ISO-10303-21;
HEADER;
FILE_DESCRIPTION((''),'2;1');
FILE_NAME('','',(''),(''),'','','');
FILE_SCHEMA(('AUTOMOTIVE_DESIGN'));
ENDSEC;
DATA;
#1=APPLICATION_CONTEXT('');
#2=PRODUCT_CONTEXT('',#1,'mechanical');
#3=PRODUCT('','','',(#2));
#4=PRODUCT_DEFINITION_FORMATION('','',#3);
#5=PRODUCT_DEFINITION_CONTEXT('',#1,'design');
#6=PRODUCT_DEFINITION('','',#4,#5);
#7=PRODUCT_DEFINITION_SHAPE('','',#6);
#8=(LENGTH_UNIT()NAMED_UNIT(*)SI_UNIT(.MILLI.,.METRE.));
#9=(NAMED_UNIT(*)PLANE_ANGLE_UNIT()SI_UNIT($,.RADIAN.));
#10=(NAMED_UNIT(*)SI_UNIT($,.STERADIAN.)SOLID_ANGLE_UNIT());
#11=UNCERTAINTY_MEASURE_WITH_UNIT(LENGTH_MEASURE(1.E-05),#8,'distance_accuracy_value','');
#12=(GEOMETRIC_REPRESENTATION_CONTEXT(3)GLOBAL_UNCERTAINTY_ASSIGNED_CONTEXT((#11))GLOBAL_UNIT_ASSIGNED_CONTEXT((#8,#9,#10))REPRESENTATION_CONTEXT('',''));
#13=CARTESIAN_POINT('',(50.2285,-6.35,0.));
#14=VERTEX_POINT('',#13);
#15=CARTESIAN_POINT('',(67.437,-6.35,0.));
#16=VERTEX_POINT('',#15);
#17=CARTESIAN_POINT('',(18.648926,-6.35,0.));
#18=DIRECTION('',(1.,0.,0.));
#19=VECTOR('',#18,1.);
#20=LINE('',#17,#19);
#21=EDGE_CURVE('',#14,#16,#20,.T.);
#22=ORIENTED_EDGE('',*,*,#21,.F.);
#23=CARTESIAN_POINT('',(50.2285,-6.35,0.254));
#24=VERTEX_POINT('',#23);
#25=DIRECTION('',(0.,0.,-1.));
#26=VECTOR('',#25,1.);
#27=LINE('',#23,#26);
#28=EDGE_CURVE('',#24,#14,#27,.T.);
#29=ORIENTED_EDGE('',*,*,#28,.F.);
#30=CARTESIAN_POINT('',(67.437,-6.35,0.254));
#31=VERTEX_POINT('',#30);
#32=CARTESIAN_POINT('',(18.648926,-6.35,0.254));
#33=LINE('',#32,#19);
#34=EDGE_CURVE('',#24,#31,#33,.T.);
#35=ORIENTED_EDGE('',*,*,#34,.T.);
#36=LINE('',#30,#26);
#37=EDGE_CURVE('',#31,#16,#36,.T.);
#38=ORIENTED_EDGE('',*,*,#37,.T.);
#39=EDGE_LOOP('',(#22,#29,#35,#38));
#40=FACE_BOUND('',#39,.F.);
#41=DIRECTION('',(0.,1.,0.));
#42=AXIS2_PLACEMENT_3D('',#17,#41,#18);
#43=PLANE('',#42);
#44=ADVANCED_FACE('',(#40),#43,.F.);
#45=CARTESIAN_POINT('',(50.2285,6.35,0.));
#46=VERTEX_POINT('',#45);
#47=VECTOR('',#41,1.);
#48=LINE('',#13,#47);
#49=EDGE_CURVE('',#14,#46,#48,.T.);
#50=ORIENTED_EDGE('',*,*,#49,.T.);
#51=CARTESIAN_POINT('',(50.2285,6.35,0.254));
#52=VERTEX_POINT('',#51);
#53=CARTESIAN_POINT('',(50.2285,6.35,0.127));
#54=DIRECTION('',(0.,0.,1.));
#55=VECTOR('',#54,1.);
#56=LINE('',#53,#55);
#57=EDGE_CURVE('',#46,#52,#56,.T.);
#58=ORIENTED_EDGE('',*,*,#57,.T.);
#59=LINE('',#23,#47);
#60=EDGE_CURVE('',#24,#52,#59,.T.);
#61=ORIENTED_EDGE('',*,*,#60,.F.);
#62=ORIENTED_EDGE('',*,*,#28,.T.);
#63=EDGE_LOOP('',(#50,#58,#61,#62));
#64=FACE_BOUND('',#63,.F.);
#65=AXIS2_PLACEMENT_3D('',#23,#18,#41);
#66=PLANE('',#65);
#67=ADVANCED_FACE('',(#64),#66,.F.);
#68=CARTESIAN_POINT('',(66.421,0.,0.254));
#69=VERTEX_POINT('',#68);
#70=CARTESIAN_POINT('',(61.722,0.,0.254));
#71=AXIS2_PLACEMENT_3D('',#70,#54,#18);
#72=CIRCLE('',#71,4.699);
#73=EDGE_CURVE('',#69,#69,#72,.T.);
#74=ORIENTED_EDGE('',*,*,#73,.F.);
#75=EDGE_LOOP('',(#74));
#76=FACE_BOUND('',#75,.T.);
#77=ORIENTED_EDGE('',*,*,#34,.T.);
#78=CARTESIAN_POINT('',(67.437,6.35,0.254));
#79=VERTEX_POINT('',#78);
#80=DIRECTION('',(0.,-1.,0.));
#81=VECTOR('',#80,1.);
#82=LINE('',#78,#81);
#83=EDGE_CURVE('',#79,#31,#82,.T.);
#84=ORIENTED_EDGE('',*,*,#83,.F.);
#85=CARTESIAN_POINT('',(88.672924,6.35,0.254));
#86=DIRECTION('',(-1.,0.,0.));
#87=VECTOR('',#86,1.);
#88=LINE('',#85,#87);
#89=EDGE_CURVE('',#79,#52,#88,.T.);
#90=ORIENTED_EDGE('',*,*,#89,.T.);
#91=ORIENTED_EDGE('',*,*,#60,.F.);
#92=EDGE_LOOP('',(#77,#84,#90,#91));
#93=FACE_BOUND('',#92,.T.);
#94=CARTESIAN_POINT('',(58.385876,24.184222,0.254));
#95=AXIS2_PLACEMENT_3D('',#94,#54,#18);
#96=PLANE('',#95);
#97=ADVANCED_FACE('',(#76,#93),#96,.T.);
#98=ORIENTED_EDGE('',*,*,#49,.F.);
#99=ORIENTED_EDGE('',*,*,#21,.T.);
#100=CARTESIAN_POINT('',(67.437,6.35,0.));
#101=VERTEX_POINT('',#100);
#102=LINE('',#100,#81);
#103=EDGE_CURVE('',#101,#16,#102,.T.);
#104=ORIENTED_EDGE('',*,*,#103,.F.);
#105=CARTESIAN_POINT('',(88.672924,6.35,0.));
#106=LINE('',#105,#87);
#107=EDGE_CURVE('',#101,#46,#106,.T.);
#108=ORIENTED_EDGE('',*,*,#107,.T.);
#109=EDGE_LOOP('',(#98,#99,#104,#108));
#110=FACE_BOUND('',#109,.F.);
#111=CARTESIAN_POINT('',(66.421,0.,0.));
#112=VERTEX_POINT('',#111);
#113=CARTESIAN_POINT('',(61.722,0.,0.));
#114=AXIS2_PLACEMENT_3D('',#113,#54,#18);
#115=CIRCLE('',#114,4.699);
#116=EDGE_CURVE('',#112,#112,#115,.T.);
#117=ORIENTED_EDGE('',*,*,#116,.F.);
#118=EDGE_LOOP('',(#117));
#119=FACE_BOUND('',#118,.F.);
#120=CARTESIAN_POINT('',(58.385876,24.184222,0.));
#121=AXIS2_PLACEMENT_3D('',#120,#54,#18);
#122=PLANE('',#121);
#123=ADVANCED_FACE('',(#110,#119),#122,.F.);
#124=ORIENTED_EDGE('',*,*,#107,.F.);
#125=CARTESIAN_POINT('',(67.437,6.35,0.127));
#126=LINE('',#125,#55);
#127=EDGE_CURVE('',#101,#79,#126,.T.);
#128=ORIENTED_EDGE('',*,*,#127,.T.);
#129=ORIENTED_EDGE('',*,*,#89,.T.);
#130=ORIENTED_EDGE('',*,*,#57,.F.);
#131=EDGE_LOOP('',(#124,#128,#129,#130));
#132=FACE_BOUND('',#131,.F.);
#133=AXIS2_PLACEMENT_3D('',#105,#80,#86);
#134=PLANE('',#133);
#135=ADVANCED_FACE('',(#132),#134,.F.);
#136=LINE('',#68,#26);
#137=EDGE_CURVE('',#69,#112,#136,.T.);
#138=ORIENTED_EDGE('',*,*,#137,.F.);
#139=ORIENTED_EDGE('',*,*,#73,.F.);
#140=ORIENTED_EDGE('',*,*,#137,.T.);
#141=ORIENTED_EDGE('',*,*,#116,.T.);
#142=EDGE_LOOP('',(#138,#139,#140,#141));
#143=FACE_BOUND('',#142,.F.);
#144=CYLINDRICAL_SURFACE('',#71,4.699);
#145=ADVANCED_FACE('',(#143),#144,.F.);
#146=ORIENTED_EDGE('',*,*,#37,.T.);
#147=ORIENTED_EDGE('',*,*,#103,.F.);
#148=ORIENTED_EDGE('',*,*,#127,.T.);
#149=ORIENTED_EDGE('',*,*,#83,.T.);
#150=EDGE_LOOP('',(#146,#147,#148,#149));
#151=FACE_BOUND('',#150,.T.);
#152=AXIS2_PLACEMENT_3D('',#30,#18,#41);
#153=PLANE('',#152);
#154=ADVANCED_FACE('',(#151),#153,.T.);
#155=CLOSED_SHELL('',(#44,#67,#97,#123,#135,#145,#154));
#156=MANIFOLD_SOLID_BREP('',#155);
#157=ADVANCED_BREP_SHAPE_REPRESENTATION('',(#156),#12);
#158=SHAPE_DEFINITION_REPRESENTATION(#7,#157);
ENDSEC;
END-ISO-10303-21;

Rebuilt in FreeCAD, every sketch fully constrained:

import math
import FreeCAD as App
import Part
import Sketcher
from FreeCAD import Vector
Q = App.Units.Quantity


def add_polygon(sketch, points):
    """Adds a closed chain of lines whose ends are joined by coincident constraints."""
    first, n = sketch.GeometryCount, len(points)
    for a, b in zip(points, points[1:] + points[:1]):
        sketch.addGeometry(Part.LineSegment(App.Vector(*a, 0), App.Vector(*b, 0)), False)
    for i in range(n):
        sketch.addConstraint(Sketcher.Constraint("Coincident", first + i, 2, first + (i + 1) % n, 1))

doc = App.newDocument("Part")
params = doc.addObject("Spreadsheet::Sheet", "Params")
for row, (alias, value) in enumerate([
    ("sketch1_radius", "4 in"),
    ("sketch1_radius2", "3.5 in"),
    ("sketch1_radius3", "0.625 in"),
    ("sketch1_radius4", "1.125 in"),
    ("pad1_length", "0.01 in"),
    ("sketch2_diameter", "0.37 in"),
    ("sketch3_width", "0.1 in"),
    ("sketch3_length", "0.1 in"),
    ("sketch3_length2", "0.05 in"),
    ("sketch3_height", "0.025 in"),
    ("sketch3_length3", "0.025 in"),
    ("sketch4_height", "0.6 in"),
], start=1):
    params.set(f"A{row}", alias)
    params.set(f"B{row}", "=" + value)
    params.setAlias(f"B{row}", alias)

body = doc.addObject("PartDesign::Body", "Body")

# Sketch on XY plane
sketch1 = body.newObject("Sketcher::SketchObject", "Sketch")
sketch1.AttachmentSupport = (doc.getObject("XY_Plane"), [""])
sketch1.MapMode = "FlatFace"
sketch1.addGeometry([
    Part.LineSegment(Vector(67.211467, 76.191723, 0), Vector(8.696654, 17.67691, 0)),  # 0
    Part.LineSegment(Vector(8.696654, 17.67691, 0), Vector(7.228955, 14.133571, 0)),  # 1
    Part.ArcOfCircle(Part.Circle(Vector(0, 0, 0), Vector(0, 0, 1), 15.875), math.radians(-17.911434), math.radians(62.911434)),  # 2
    Part.LineSegment(Vector(15.105587, -4.882301, 0), Vector(18.648926, -6.35, 0)),  # 3
    Part.LineSegment(Vector(18.648926, -6.35, 0), Vector(101.401368, -6.35, 0)),  # 4
    Part.ArcOfCircle(Part.Circle(Vector(0, 0, 0), Vector(0, 0, 1), 101.6), math.radians(-3.583322), math.radians(48.583322)),  # 5
    Part.ArcOfCircle(Part.Circle(Vector(0, 0, 0), Vector(0, 0, 1), 88.9), math.radians(4.096044), math.radians(40.903956)),  # 6
    Part.LineSegment(Vector(88.672924, 6.35, 0), Vector(27.860512, 6.35, 0)),  # 7
    Part.ArcOfCircle(Part.Circle(Vector(0, 0, 0), Vector(0, 0, 1), 28.575), math.radians(12.839588), math.radians(32.160412)),  # 8
    Part.LineSegment(Vector(24.190485, 15.210229, 0), Vector(67.191354, 58.211098, 0)),  # 9
], False)
sketch1.addConstraint([
    Sketcher.Constraint("Coincident", 0, 2, 1, 1),
    Sketcher.Constraint("Coincident", 1, 2, 2, 2),
    Sketcher.Constraint("Coincident", 2, 1, 3, 1),
    Sketcher.Constraint("Coincident", 3, 2, 4, 1),
    Sketcher.Constraint("Coincident", 4, 2, 5, 1),
    Sketcher.Constraint("Coincident", 5, 2, 0, 1),
    Sketcher.Constraint("Coincident", 6, 1, 7, 1),
    Sketcher.Constraint("Coincident", 7, 2, 8, 1),
    Sketcher.Constraint("Coincident", 8, 2, 9, 1),
    Sketcher.Constraint("Coincident", 9, 2, 6, 2),
    Sketcher.Constraint("Horizontal", 4),
    Sketcher.Constraint("Horizontal", 7),
    Sketcher.Constraint("Coincident", 2, 3, -1, 1),
    Sketcher.Constraint("Coincident", 5, 3, -1, 1),
    Sketcher.Constraint("Coincident", 6, 3, -1, 1),
    Sketcher.Constraint("Coincident", 8, 3, -1, 1),
    Sketcher.Constraint("Perpendicular", 1, 3),
    Sketcher.Constraint("Parallel", 0, 9),
    Sketcher.Constraint("Equal", 1, 3),
    Sketcher.Constraint("Radius", 5, Q("4 in")),
    Sketcher.Constraint("Radius", 6, Q("3.5 in")),
    Sketcher.Constraint("Angle", 0, Q("-135 deg")),
    Sketcher.Constraint("Radius", 2, Q("0.625 in")),
    Sketcher.Constraint("Radius", 8, Q("1.125 in")),
    Sketcher.Constraint("Angle", 1, Q("-112.5 deg")),
    Sketcher.Constraint("DistanceY", 4, 2, 6, 1, Q("0.5 in")),
    Sketcher.Constraint("DistanceY", 3, 2, -1, 1, Q("0.25 in")),
    Sketcher.Constraint("DistanceY", 2, 1, -1, 1, Q("4.882301 mm")),
    Sketcher.Constraint("DistanceY", -1, 1, 9, 2, Q("58.211098 mm")),
    Sketcher.Constraint("DistanceX", 5, 2, 4, 2, Q("34.189901 mm")),
])
sketch1.setExpression("Constraints[19]", "Params.sketch1_radius")
sketch1.setExpression("Constraints[20]", "Params.sketch1_radius2")
sketch1.setExpression("Constraints[22]", "Params.sketch1_radius3")
sketch1.setExpression("Constraints[23]", "Params.sketch1_radius4")
pad1 = body.newObject("PartDesign::Pad", "Pad")
pad1.Profile = sketch1
pad1.setExpression("Length", "Params.pad1_length")

# Sketch on XY plane
sketch2 = body.newObject("Sketcher::SketchObject", "Sketch001")
sketch2.AttachmentSupport = (doc.getObject("XY_Plane"), [""])
sketch2.MapMode = "FlatFace"
sketch2.AttachmentOffset = App.Placement(Vector(0, 0, 0.01 * 25.4), App.Rotation())
sketch2.addGeometry([
    Part.Circle(Vector(22.225, 0, 0), Vector(0, 0, 1), 4.699),  # 0
    Part.Circle(Vector(36.195, 0, 0), Vector(0, 0, 1), 4.699),  # 1
    Part.Circle(Vector(61.722, 0, 0), Vector(0, 0, 1), 4.699),  # 2
    Part.Circle(Vector(75.692, 0, 0), Vector(0, 0, 1), 4.699),  # 3
    Part.Circle(Vector(95.25, 0, 0), Vector(0, 0, 1), 4.699),  # 4
    Part.Circle(Vector(15.715448, 15.715448, 0), Vector(0, 0, 1), 4.699),  # 5
    Part.Circle(Vector(25.59373, 25.59373, 0), Vector(0, 0, 1), 4.699),  # 6
    Part.Circle(Vector(43.644045, 43.644045, 0), Vector(0, 0, 1), 4.699),  # 7
    Part.Circle(Vector(53.522326, 53.522326, 0), Vector(0, 0, 1), 4.699),  # 8
    Part.Circle(Vector(92.004435, 24.652514, 0), Vector(0, 0, 1), 4.699),  # 9
    Part.Circle(Vector(82.48892, 47.625, 0), Vector(0, 0, 1), 4.699),  # 10
    Part.Circle(Vector(67.351921, 67.351921, 0), Vector(0, 0, 1), 4.699),  # 11
], False)
sketch2.addConstraint([
    Sketcher.Constraint("Equal", 0, 1),
    Sketcher.Constraint("Equal", 1, 2),
    Sketcher.Constraint("Equal", 2, 3),
    Sketcher.Constraint("Equal", 3, 4),
    Sketcher.Constraint("Equal", 4, 5),
    Sketcher.Constraint("Equal", 5, 6),
    Sketcher.Constraint("Equal", 6, 7),
    Sketcher.Constraint("Equal", 7, 8),
    Sketcher.Constraint("Equal", 8, 9),
    Sketcher.Constraint("Equal", 9, 10),
    Sketcher.Constraint("Equal", 10, 11),
    Sketcher.Constraint("PointOnObject", 0, 3, -1),
    Sketcher.Constraint("PointOnObject", 1, 3, -1),
    Sketcher.Constraint("PointOnObject", 2, 3, -1),
    Sketcher.Constraint("PointOnObject", 3, 3, -1),
    Sketcher.Constraint("PointOnObject", 4, 3, -1),
    Sketcher.Constraint("Diameter", 0, Q("0.37 in")),
    Sketcher.Constraint("DistanceX", -1, 1, 2, 3, Q("2.43 in")),
    Sketcher.Constraint("DistanceX", -1, 1, 3, 3, Q("2.98 in")),
    Sketcher.Constraint("DistanceX", -1, 1, 4, 3, Q("3.75 in")),
    Sketcher.Constraint("DistanceX", 0, 3, 1, 3, Q("0.55 in")),
    Sketcher.Constraint("DistanceX", -1, 1, 0, 3, Q("0.875 in")),
    Sketcher.Constraint("DistanceY", -1, 1, 10, 3, Q("1.875 in")),
    Sketcher.Constraint("DistanceX", 11, 3, 10, 3, Q("15.136999 mm")),
    Sketcher.Constraint("DistanceX", -1, 1, 5, 3, Q("15.715448 mm")),
    Sketcher.Constraint("DistanceY", -1, 1, 5, 3, Q("15.715448 mm")),
    Sketcher.Constraint("DistanceX", -1, 1, 6, 3, Q("25.59373 mm")),
    Sketcher.Constraint("DistanceY", -1, 1, 6, 3, Q("25.59373 mm")),
    Sketcher.Constraint("DistanceX", -1, 1, 10, 3, Q("82.48892 mm")),
    Sketcher.Constraint("DistanceY", -1, 1, 11, 3, Q("67.351921 mm")),
    Sketcher.Constraint("DistanceX", 7, 3, 8, 3, Q("9.878282 mm")),
    Sketcher.Constraint("DistanceY", 7, 3, 8, 3, Q("9.878282 mm")),
    Sketcher.Constraint("DistanceX", 5, 3, 8, 3, Q("37.806878 mm")),
    Sketcher.Constraint("DistanceY", 5, 3, 8, 3, Q("37.806878 mm")),
    Sketcher.Constraint("DistanceX", 8, 3, 9, 3, Q("38.482108 mm")),
    Sketcher.Constraint("DistanceY", 9, 3, 7, 3, Q("18.991531 mm")),
])
sketch2.setExpression("Constraints[16]", "Params.sketch2_diameter")
pocket1 = body.newObject("PartDesign::Pocket", "Pocket")
pocket1.Profile = sketch2
pocket1.Type = "ThroughAll"

# Sketch on XY plane
sketch3 = body.newObject("Sketcher::SketchObject", "Sketch002")
sketch3.AttachmentSupport = (doc.getObject("XY_Plane"), [""])
sketch3.MapMode = "FlatFace"
sketch3.AttachmentOffset = App.Placement(Vector(0, 0, 0.01 * 25.4), App.Rotation())
add_polygon(sketch3, [(17.062487, 26.042743), (15.266435, 24.246692), (15.715448, 23.797679), (17.511499, 25.59373)])  # lines 0-3
add_polygon(sketch3, [(44.991083, 53.971339), (43.195032, 52.175288), (43.644045, 51.726275), (45.440096, 53.522326)])  # lines 4-7
add_polygon(sketch3, [(27.94, -5.715), (27.94, -6.35), (30.48, -6.35), (30.48, -5.715)])  # lines 8-11
add_polygon(sketch3, [(67.437, -5.715), (67.437, -6.35), (69.977, -6.35), (69.977, -5.715)])  # lines 12-15
add_polygon(sketch3, [(31.026785, 40.007041), (29.230734, 38.21099), (29.679746, 37.761977), (31.475798, 39.558028)])  # lines 16-19
add_polygon(sketch3, [(56.845021, 65.825277), (55.04897, 64.029226), (55.497983, 63.580213), (57.294034, 65.376265)])  # lines 20-23
add_polygon(sketch3, [(47.6885, -5.715), (47.6885, -6.35), (50.2285, -6.35), (50.2285, -5.715)])  # lines 24-27
add_polygon(sketch3, [(84.201, -5.715), (84.201, -6.35), (86.741, -6.35), (86.741, -5.715)])  # lines 28-31
add_polygon(sketch3, [(99.935462, 14.437712), (100.266999, 11.919442), (101.526134, 12.08521), (101.194597, 14.60348)])  # lines 32-35
add_polygon(sketch3, [(93.765505, 37.464306), (94.938832, 37.950314), (93.966816, 40.296968), (92.793489, 39.81096)])  # lines 36-39
add_polygon(sketch3, [(79.327793, 62.471156), (80.874047, 60.456039), (81.881606, 61.229166), (80.335352, 63.244283)])  # lines 40-43
add_polygon(sketch3, [(13.593916, 7.005423), (14.565932, 4.658769), (15.739259, 5.144776), (14.767243, 7.49143)])  # lines 44-47
sketch3.addConstraint([
    Sketcher.Constraint("Vertical", 8),
    Sketcher.Constraint("Horizontal", 9),
    Sketcher.Constraint("Vertical", 10),
    Sketcher.Constraint("Horizontal", 11),
    Sketcher.Constraint("Vertical", 12),
    Sketcher.Constraint("Horizontal", 13),
    Sketcher.Constraint("Vertical", 14),
    Sketcher.Constraint("Horizontal", 15),
    Sketcher.Constraint("Vertical", 24),
    Sketcher.Constraint("Horizontal", 25),
    Sketcher.Constraint("Vertical", 26),
    Sketcher.Constraint("Horizontal", 27),
    Sketcher.Constraint("Vertical", 28),
    Sketcher.Constraint("Horizontal", 29),
    Sketcher.Constraint("Vertical", 30),
    Sketcher.Constraint("Horizontal", 31),
    Sketcher.Constraint("Perpendicular", 0, 1),
    Sketcher.Constraint("Perpendicular", 1, 2),
    Sketcher.Constraint("Perpendicular", 2, 3),
    Sketcher.Constraint("Perpendicular", 3, 4),
    Sketcher.Constraint("Perpendicular", 4, 5),
    Sketcher.Constraint("Perpendicular", 5, 6),
    Sketcher.Constraint("Perpendicular", 6, 7),
    Sketcher.Constraint("Perpendicular", 7, 16),
    Sketcher.Constraint("Perpendicular", 16, 17),
    Sketcher.Constraint("Perpendicular", 17, 18),
    Sketcher.Constraint("Perpendicular", 18, 19),
    Sketcher.Constraint("Perpendicular", 19, 20),
    Sketcher.Constraint("Perpendicular", 20, 21),
    Sketcher.Constraint("Perpendicular", 21, 22),
    Sketcher.Constraint("Perpendicular", 22, 23),
    Sketcher.Constraint("Perpendicular", 32, 33),
    Sketcher.Constraint("Perpendicular", 33, 34),
    Sketcher.Constraint("Perpendicular", 34, 35),
    Sketcher.Constraint("Perpendicular", 36, 37),
    Sketcher.Constraint("Perpendicular", 37, 38),
    Sketcher.Constraint("Perpendicular", 38, 39),
    Sketcher.Constraint("Perpendicular", 40, 41),
    Sketcher.Constraint("Perpendicular", 41, 42),
    Sketcher.Constraint("Perpendicular", 42, 43),
    Sketcher.Constraint("Parallel", 39, 44),
    Sketcher.Constraint("Perpendicular", 44, 45),
    Sketcher.Constraint("Perpendicular", 45, 46),
    Sketcher.Constraint("Perpendicular", 46, 47),
    Sketcher.Constraint("Horizontal", 9, 2, 12, 2),
    Sketcher.Constraint("Horizontal", 11, 2, 14, 2),
    Sketcher.Constraint("Horizontal", 13, 2, 24, 2),
    Sketcher.Constraint("Horizontal", 15, 2, 26, 2),
    Sketcher.Constraint("Horizontal", 25, 2, 28, 2),
    Sketcher.Constraint("Horizontal", 27, 2, 30, 2),
    Sketcher.Constraint("Equal", 11, 13),
    Sketcher.Constraint("Equal", 15, 25),
    Sketcher.Constraint("Equal", 27, 29),
    Sketcher.Constraint("Equal", 2, 4),
    Sketcher.Constraint("Equal", 3, 5),
    Sketcher.Constraint("Equal", 6, 16),
    Sketcher.Constraint("Equal", 7, 17),
    Sketcher.Constraint("Equal", 18, 20),
    Sketcher.Constraint("Equal", 19, 21),
    Sketcher.Constraint("Equal", 22, 32),
    Sketcher.Constraint("Equal", 35, 36),
    Sketcher.Constraint("Equal", 34, 37),
    Sketcher.Constraint("Equal", 39, 40),
    Sketcher.Constraint("Equal", 38, 41),
    Sketcher.Constraint("Equal", 42, 44),
    Sketcher.Constraint("Equal", 43, 45),
    Sketcher.Constraint("DistanceX", 9, 1, 9, 2, Q("0.1 in")),
    Sketcher.Constraint("Angle", 0, Q("-135 deg")),
    Sketcher.Constraint("Distance", 0, Q("0.1 in")),
    Sketcher.Constraint("DistanceX", -1, 1, 8, 2, Q("1.1 in")),
    Sketcher.Constraint("Angle", 32, Q("-82.5 deg")),
    Sketcher.Constraint("Angle", 36, Q("22.5 deg")),
    Sketcher.Constraint("Angle", 40, Q("-52.5 deg")),
    Sketcher.Constraint("Distance", 33, Q("0.05 in")),
    Sketcher.Constraint("DistanceY", 8, 2, 8, 1, Q("0.025 in")),
    Sketcher.Constraint("DistanceY", 8, 2, -1, 1, Q("0.25 in")),
    Sketcher.Constraint("DistanceX", 13, 2, 28, 2, Q("0.56 in")),
    Sketcher.Constraint("Distance", 1, Q("0.025 in")),
    Sketcher.Constraint("DistanceX", -1, 1, 12, 2, Q("2.655 in")),
    Sketcher.Constraint("DistanceX", -1, 1, 24, 2, Q("1.8775 in")),
    Sketcher.Constraint("DistanceX", -1, 1, 2, 2, Q("17.511499 mm")),
    Sketcher.Constraint("DistanceX", -1, 1, 32, 2, Q("100.266999 mm")),
    Sketcher.Constraint("DistanceX", 16, 2, 4, 2, Q("13.964298 mm")),
    Sketcher.Constraint("DistanceY", 16, 2, 4, 2, Q("13.964298 mm")),
    Sketcher.Constraint("DistanceX", 0, 2, 16, 2, Q("13.964298 mm")),
    Sketcher.Constraint("DistanceY", 0, 2, 16, 2, Q("13.964298 mm")),
    Sketcher.Constraint("DistanceY", 6, 2, 20, 2, Q("10.5069 mm")),
    Sketcher.Constraint("DistanceX", 7, 2, 21, 2, Q("10.5069 mm")),
    Sketcher.Constraint("DistanceY", 35, 2, 36, 2, Q("23.512602 mm")),
    Sketcher.Constraint("DistanceX", 36, 2, 33, 2, Q("6.587302 mm")),
    Sketcher.Constraint("DistanceY", 37, 2, 41, 2, Q("20.932198 mm")),
    Sketcher.Constraint("DistanceY", 41, 2, 22, 2, Q("4.147099 mm")),
    Sketcher.Constraint("DistanceY", 46, 2, 2, 2, Q("18.102299 mm")),
    Sketcher.Constraint("DistanceY", -1, 1, 0, 2, Q("24.246692 mm")),
    Sketcher.Constraint("DistanceX", -1, 1, 42, 2, Q("80.335352 mm")),
    Sketcher.Constraint("DistanceX", -1, 1, 45, 2, Q("15.739259 mm")),
])
sketch3.setExpression("Constraints[114]", "Params.sketch3_width")
sketch3.setExpression("Constraints[116]", "Params.sketch3_length")
sketch3.setExpression("Constraints[121]", "Params.sketch3_length2")
sketch3.setExpression("Constraints[122]", "Params.sketch3_height")
sketch3.setExpression("Constraints[125]", "Params.sketch3_length3")
pocket2 = body.newObject("PartDesign::Pocket", "Pocket001")
pocket2.Profile = sketch3
pocket2.Type = "ThroughAll"

# Sketch on XY plane
sketch4 = body.newObject("Sketcher::SketchObject", "Sketch003")
sketch4.AttachmentSupport = (doc.getObject("XY_Plane"), [""])
sketch4.MapMode = "FlatFace"
sketch4.AttachmentOffset = App.Placement(Vector(0, 0, 0.01 * 25.4), App.Rotation())
add_polygon(sketch4, [(-6.309, 89.73), (-6.309, -19.888), (115.138, -19.888), (115.138, 89.73)])  # lines 0-3
add_polygon(sketch4, [(67.437, -7.62), (50.2285, -7.62), (50.2285, 7.62), (67.437, 7.62)])  # lines 4-7
sketch4.addConstraint([
    Sketcher.Constraint("Vertical", 0),
    Sketcher.Constraint("Horizontal", 1),
    Sketcher.Constraint("Vertical", 2),
    Sketcher.Constraint("Horizontal", 3),
    Sketcher.Constraint("Horizontal", 4),
    Sketcher.Constraint("Vertical", 5),
    Sketcher.Constraint("Horizontal", 6),
    Sketcher.Constraint("Vertical", 7),
    Sketcher.Constraint("DistanceY", 5, 1, 5, 2, Q("0.6 in")),
    Sketcher.Constraint("DistanceY", 4, 2, -1, 1, Q("0.3 in")),
    Sketcher.Constraint("DistanceX", 4, 2, 4, 1, Q("0.6775 in")),
    Sketcher.Constraint("DistanceX", -1, 1, 6, 2, Q("2.655 in")),
    Sketcher.Constraint("DistanceX", 1, 1, 1, 2, Q("121.447 mm")),
    Sketcher.Constraint("DistanceY", 0, 2, 0, 1, Q("109.618 mm")),
    Sketcher.Constraint("DistanceX", 0, 2, -1, 1, Q("6.309 mm")),
    Sketcher.Constraint("DistanceY", 0, 2, -1, 1, Q("19.888 mm")),
])
sketch4.setExpression("Constraints[16]", "Params.sketch4_height")
pocket3 = body.newObject("PartDesign::Pocket", "Pocket002")
pocket3.Profile = sketch4
pocket3.Type = "ThroughAll"

doc.recompute()
